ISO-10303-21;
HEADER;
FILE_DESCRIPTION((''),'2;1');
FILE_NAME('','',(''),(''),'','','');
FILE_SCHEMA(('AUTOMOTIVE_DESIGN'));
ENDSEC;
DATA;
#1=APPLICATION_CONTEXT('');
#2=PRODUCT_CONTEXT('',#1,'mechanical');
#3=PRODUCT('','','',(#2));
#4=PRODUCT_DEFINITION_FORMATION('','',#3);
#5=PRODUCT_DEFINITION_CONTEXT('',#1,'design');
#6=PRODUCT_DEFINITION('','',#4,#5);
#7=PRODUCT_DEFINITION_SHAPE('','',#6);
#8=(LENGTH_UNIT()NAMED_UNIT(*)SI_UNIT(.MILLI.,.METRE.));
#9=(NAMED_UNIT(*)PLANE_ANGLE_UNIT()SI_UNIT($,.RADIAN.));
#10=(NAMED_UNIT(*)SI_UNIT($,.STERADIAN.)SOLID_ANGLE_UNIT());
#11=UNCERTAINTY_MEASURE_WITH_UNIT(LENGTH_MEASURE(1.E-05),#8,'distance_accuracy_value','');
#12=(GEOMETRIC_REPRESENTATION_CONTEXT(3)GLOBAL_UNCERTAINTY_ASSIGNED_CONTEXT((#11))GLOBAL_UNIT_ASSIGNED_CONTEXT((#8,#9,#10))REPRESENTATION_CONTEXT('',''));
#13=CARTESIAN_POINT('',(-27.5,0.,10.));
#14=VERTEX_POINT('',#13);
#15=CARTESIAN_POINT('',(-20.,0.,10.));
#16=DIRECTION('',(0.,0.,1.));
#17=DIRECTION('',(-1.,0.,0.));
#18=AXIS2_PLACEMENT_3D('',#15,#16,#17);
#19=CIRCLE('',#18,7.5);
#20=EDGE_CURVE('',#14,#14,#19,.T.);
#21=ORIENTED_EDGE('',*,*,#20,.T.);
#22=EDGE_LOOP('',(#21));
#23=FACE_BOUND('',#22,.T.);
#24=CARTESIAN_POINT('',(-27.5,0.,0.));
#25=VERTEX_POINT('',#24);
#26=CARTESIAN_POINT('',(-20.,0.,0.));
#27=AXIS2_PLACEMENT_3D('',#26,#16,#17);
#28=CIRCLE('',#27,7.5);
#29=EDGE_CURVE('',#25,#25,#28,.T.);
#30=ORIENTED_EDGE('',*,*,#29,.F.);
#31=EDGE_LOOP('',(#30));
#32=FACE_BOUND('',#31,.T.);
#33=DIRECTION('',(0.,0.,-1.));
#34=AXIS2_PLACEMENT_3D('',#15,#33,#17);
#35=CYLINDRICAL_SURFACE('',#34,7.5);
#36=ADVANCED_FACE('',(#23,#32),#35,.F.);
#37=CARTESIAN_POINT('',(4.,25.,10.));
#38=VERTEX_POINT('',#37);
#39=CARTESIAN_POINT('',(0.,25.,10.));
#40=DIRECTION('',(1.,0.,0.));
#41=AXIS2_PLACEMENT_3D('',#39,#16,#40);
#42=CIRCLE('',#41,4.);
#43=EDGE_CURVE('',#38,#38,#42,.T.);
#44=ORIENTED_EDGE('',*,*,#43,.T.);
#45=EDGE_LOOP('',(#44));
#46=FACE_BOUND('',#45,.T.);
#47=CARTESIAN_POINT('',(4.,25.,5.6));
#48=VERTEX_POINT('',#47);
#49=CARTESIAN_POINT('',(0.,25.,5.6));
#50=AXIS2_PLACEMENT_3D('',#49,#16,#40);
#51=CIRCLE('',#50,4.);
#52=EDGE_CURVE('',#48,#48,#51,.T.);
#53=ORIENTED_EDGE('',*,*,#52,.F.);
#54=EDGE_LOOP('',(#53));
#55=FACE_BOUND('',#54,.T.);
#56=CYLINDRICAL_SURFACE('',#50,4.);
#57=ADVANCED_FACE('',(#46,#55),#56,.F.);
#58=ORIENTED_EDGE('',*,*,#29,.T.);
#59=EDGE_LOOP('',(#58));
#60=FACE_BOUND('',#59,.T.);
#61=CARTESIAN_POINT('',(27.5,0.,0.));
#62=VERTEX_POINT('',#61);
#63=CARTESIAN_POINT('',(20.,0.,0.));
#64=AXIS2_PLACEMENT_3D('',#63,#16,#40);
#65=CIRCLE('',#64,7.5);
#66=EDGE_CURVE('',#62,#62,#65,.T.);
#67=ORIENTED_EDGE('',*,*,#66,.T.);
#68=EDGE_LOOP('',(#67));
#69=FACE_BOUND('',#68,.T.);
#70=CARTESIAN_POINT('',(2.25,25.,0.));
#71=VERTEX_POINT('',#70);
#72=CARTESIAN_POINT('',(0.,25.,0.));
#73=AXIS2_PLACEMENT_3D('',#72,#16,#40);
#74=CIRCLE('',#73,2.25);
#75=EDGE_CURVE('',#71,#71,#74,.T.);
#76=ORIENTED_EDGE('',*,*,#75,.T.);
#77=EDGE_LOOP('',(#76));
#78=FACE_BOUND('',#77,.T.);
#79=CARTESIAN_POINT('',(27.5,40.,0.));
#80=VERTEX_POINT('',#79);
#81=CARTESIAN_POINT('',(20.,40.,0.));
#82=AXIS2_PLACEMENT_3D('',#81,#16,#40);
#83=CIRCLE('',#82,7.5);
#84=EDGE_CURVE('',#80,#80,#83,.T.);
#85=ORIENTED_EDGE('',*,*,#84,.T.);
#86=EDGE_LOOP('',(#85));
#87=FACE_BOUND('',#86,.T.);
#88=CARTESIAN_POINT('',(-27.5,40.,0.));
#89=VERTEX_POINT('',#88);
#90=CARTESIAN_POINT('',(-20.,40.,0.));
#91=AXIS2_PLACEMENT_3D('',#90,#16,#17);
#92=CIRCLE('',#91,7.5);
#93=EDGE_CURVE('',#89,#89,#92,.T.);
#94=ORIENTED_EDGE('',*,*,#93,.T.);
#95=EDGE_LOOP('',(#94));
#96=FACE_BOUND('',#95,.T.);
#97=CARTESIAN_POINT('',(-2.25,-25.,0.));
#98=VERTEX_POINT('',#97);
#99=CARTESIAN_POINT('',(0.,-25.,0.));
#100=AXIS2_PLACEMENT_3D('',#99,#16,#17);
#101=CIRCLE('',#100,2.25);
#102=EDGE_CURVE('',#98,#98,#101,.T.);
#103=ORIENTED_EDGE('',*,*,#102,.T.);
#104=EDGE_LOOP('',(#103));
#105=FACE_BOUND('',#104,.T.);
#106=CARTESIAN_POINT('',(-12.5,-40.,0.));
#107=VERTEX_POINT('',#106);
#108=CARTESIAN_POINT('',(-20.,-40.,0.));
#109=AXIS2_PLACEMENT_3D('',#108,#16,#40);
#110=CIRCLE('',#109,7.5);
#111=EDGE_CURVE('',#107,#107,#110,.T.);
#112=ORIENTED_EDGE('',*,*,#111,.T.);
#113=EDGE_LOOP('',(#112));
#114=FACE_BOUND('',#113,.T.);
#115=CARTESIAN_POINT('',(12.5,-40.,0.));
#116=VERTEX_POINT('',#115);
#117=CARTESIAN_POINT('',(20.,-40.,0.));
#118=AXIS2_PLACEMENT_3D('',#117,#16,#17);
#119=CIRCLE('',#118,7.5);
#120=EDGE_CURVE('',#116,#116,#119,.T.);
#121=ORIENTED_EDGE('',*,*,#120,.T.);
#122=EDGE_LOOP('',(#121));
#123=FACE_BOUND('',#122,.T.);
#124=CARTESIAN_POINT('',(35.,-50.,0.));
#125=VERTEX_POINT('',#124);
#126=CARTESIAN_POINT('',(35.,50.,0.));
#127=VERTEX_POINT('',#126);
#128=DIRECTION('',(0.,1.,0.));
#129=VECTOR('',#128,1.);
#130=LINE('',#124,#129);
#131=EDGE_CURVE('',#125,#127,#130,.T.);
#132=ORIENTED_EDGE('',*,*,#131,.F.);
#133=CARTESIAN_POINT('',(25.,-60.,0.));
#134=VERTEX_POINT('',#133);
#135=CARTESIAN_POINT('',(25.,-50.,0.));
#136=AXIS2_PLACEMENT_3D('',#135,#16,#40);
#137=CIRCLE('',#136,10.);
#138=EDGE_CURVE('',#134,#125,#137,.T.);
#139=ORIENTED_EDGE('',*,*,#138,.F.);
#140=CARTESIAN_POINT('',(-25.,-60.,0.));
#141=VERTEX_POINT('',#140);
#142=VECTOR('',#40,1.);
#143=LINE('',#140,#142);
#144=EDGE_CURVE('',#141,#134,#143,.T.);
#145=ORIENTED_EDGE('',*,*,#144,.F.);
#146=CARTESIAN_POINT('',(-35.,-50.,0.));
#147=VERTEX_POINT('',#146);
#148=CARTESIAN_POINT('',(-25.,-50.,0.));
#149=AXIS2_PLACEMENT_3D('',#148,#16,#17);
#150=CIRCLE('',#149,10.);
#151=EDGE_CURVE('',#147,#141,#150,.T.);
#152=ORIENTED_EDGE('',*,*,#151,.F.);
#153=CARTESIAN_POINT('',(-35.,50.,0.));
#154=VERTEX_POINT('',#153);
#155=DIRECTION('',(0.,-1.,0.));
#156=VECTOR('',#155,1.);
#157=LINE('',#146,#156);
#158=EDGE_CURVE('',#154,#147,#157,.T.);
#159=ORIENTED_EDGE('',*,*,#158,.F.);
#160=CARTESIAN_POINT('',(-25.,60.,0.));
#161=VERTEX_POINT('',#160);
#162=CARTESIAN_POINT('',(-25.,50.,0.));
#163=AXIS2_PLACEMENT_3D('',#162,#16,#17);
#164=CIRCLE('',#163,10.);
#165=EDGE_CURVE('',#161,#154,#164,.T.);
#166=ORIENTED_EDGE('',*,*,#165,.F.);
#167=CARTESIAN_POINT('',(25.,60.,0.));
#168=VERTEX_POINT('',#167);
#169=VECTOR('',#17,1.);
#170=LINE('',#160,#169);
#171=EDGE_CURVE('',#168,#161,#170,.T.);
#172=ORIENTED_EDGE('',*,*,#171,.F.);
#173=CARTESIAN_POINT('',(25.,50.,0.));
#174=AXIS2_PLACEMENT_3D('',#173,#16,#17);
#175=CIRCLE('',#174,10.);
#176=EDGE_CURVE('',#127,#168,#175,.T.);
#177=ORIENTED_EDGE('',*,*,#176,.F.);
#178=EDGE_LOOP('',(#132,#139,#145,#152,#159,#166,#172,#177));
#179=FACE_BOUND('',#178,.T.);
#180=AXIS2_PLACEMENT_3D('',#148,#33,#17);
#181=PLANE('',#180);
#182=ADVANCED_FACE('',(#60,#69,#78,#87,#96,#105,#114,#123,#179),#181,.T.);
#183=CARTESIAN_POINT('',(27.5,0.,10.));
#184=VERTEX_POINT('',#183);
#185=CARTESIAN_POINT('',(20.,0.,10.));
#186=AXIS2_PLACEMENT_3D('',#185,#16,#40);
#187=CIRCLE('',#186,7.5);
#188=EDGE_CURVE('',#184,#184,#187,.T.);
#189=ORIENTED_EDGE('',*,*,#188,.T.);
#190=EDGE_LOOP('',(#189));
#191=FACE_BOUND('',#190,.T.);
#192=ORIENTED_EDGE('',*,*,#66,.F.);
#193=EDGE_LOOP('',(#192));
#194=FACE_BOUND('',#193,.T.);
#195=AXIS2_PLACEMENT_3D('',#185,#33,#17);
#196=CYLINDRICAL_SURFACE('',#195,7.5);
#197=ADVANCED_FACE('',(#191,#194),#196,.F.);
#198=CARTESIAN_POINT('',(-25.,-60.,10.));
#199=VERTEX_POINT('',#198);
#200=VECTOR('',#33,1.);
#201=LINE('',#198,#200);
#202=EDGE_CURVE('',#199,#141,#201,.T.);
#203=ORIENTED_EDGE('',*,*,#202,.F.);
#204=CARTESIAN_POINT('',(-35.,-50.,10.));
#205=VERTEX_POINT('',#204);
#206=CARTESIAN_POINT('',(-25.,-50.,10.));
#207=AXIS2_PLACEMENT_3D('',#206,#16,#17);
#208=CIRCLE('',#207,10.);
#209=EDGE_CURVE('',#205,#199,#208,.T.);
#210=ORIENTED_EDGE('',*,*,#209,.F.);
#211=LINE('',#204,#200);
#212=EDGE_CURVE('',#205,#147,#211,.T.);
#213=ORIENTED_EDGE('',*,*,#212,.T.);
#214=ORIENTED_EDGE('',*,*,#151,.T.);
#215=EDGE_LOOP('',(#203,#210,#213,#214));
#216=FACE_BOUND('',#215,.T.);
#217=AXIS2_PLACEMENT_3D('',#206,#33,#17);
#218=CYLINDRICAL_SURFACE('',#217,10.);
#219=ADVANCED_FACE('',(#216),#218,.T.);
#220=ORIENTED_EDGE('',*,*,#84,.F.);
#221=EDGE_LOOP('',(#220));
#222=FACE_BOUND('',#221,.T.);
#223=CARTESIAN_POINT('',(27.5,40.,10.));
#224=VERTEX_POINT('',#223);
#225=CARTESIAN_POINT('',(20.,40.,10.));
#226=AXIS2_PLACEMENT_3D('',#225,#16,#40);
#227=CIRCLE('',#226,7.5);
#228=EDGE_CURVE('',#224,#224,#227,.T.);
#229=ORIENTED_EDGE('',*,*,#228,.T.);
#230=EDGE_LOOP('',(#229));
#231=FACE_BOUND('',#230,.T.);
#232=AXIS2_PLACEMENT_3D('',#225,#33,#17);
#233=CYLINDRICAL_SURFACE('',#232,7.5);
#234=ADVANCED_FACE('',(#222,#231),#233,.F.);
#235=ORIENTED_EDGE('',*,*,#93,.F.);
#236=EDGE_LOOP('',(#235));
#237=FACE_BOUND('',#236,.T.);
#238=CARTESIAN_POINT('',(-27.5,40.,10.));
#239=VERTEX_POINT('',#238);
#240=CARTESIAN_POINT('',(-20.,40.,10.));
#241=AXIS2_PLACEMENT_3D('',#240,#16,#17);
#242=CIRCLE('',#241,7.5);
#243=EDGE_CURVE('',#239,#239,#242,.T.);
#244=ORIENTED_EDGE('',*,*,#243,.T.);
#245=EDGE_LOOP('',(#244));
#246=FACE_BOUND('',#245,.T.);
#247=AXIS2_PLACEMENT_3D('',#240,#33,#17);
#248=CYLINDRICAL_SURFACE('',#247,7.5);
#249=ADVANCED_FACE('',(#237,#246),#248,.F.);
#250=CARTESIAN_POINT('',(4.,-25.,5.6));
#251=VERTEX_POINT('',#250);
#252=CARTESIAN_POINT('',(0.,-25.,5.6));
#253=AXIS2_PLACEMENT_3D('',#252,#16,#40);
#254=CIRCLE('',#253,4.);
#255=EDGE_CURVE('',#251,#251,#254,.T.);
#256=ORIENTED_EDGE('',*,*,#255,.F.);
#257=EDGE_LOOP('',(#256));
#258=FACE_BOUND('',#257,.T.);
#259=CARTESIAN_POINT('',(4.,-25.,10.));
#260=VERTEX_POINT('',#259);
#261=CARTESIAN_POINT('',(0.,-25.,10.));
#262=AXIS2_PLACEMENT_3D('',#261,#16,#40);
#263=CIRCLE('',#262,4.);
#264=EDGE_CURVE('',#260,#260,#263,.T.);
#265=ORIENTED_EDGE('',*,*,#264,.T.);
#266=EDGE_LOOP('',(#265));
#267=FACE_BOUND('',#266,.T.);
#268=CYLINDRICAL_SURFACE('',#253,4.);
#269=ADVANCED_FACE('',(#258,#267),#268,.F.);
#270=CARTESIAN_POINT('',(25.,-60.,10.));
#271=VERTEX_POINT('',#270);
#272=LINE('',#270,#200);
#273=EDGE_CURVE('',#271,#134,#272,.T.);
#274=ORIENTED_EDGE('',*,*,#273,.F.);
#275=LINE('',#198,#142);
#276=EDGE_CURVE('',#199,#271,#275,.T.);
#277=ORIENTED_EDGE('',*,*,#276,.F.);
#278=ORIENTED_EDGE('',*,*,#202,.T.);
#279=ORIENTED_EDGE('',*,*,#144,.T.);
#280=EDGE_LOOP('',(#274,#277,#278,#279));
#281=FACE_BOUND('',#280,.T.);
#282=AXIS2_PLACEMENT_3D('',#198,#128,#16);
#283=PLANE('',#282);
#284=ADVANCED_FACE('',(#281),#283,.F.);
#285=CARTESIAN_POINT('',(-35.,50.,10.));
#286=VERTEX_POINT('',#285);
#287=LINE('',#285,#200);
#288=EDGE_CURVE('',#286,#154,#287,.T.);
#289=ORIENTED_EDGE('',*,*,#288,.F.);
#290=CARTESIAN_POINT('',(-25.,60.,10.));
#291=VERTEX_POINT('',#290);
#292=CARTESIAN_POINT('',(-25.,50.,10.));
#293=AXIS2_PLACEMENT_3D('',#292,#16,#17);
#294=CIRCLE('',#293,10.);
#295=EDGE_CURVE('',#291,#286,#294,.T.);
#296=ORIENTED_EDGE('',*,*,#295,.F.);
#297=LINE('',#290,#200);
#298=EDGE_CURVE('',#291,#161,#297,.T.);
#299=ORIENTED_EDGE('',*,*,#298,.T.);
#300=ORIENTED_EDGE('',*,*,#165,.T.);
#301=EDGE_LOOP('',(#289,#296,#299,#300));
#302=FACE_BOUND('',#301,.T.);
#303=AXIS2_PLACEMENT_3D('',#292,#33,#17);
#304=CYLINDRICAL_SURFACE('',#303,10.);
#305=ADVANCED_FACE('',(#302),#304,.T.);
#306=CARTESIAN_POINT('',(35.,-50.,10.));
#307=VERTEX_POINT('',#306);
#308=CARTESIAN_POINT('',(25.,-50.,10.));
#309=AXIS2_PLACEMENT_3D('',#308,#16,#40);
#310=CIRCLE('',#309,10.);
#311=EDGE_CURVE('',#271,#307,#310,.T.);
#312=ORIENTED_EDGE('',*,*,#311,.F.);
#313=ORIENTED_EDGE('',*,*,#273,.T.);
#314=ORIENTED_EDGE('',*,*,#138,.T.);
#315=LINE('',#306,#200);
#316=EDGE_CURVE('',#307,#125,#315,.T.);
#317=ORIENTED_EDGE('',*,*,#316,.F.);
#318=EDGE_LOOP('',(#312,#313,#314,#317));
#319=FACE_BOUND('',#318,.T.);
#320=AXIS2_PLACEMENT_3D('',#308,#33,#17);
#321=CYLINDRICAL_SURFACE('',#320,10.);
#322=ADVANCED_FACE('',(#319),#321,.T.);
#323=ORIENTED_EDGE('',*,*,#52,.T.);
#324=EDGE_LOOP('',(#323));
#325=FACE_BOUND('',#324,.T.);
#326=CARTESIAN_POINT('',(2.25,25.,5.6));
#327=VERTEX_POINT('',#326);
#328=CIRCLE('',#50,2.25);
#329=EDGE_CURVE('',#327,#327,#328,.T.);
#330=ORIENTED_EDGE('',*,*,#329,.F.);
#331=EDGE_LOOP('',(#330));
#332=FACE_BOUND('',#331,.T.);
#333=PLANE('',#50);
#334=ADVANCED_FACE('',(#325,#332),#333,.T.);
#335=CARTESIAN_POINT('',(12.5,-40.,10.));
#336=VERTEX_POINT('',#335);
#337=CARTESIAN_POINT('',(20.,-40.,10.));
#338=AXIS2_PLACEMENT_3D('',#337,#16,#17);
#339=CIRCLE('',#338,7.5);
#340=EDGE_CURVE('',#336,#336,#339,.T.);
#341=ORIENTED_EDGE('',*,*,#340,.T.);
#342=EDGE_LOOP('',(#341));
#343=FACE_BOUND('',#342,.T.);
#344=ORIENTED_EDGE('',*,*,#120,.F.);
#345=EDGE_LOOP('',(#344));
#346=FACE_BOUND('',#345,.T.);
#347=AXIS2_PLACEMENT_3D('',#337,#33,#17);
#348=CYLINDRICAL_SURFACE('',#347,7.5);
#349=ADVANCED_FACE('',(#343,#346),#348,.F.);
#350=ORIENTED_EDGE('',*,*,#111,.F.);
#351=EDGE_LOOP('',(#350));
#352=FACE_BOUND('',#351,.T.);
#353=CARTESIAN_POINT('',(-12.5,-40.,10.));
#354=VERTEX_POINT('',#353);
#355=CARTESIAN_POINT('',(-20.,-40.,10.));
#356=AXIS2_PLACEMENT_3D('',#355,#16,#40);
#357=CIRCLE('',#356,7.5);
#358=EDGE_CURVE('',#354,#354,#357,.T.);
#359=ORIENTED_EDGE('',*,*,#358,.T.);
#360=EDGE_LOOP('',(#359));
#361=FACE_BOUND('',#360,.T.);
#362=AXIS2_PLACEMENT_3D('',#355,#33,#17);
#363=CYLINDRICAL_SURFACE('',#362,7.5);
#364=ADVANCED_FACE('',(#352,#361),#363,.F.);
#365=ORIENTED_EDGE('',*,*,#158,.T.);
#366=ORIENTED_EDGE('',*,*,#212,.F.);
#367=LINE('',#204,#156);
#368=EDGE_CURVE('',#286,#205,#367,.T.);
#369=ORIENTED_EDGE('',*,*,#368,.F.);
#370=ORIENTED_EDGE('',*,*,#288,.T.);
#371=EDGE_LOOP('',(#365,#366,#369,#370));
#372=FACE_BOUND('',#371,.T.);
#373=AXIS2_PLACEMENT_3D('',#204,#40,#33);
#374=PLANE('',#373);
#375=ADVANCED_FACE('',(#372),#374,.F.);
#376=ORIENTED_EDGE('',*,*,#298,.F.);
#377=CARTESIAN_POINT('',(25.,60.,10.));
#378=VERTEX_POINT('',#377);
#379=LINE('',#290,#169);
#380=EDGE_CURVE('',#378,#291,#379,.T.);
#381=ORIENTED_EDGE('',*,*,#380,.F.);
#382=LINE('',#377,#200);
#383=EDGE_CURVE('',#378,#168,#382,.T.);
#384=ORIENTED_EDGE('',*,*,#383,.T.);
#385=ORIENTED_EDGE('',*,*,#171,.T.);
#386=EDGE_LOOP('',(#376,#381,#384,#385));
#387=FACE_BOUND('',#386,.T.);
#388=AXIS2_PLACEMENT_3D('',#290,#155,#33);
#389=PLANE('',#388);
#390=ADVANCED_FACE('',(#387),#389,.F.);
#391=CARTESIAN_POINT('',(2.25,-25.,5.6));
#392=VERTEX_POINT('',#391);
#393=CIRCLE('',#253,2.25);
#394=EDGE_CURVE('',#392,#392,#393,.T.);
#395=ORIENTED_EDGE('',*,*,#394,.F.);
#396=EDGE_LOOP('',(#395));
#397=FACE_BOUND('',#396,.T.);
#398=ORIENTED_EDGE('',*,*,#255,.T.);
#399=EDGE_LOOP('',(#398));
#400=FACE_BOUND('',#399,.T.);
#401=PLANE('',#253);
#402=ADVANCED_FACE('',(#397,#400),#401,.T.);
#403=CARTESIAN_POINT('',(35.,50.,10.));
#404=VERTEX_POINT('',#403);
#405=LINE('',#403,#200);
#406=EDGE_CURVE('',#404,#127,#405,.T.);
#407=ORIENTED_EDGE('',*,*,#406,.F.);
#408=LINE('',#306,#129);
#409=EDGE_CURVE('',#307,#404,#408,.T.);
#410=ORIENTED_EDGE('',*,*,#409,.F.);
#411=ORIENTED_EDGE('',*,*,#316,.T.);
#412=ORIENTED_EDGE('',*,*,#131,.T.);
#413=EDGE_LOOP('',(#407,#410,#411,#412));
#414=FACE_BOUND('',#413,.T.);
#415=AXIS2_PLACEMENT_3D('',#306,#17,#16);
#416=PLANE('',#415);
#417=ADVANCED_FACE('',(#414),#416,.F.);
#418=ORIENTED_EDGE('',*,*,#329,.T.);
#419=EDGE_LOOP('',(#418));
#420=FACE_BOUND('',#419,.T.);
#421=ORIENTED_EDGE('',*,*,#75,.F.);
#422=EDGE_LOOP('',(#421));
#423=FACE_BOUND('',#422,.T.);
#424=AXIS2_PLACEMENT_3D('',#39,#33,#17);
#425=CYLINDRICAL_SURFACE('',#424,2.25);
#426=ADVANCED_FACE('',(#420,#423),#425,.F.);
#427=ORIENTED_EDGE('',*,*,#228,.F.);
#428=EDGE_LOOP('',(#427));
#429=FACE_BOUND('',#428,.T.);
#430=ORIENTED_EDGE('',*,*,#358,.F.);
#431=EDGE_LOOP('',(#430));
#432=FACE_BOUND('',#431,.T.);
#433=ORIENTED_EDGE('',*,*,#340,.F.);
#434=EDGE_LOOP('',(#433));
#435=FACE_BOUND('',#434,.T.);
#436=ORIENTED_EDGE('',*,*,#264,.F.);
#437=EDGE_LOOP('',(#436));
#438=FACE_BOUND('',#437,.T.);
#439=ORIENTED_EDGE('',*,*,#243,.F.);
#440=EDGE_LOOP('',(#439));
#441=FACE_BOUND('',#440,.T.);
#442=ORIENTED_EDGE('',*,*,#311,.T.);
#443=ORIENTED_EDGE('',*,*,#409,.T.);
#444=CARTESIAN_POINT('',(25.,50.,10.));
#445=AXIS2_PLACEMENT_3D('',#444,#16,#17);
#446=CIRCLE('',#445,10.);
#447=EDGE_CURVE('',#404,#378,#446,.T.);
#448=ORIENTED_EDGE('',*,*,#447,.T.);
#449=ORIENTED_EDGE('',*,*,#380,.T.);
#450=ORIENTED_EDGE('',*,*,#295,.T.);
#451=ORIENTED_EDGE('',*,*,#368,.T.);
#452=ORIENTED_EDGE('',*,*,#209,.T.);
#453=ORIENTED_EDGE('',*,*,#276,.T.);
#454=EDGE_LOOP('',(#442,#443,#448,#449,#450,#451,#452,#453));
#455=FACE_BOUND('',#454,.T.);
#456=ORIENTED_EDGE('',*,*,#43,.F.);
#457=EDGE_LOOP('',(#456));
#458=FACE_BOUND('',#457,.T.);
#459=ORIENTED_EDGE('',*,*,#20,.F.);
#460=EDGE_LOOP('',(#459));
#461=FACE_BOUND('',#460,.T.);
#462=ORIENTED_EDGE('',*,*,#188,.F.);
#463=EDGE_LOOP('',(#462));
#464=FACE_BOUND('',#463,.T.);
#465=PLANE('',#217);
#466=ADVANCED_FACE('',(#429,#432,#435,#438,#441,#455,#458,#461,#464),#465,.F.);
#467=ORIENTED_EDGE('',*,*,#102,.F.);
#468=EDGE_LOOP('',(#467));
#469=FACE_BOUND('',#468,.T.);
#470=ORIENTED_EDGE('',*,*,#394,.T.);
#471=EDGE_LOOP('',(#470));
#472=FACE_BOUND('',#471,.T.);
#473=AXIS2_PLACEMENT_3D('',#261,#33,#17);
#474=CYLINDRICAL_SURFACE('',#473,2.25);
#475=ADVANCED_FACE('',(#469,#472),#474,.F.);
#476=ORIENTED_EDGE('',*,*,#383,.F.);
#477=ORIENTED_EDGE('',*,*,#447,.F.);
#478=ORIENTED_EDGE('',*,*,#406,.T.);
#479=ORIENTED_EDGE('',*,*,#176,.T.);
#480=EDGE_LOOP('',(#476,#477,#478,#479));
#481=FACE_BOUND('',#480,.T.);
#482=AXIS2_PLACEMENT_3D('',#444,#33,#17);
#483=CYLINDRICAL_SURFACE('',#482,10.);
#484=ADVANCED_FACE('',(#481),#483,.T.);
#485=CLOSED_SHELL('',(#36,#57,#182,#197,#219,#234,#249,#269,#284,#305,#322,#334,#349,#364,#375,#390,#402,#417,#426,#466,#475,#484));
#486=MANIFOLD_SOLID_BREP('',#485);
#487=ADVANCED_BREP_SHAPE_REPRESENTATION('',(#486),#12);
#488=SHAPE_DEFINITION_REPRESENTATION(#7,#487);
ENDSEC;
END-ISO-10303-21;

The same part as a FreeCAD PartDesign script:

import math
import FreeCAD as App
import Part
import Sketcher
from FreeCAD import Vector
Q = App.Units.Quantity

doc = App.newDocument("Part")
body = doc.addObject("PartDesign::Body", "Body")

# Sketch on XY plane
sketch1 = doc.addObject("Sketcher::SketchObject", "Sketch")
body.addObject(sketch1)
sketch1.AttachmentSupport = (doc.XY_Plane, [""])
sketch1.MapMode = "FlatFace"
sketch1.addGeometry([
    Part.LineSegment(Vector(-25, -60, 0), Vector(25, -60, 0)),  # 0
    Part.ArcOfCircle(Part.Circle(Vector(25, -50, 0), Vector(0, 0, 1), 10), math.radians(-90), math.radians(0)),  # 1
    Part.LineSegment(Vector(35, -50, 0), Vector(35, 50, 0)),  # 2
    Part.ArcOfCircle(Part.Circle(Vector(25, 50, 0), Vector(0, 0, 1), 10), math.radians(0), math.radians(90)),  # 3
    Part.LineSegment(Vector(25, 60, 0), Vector(-25, 60, 0)),  # 4
    Part.ArcOfCircle(Part.Circle(Vector(-25, 50, 0), Vector(0, 0, 1), 10), math.radians(90), math.radians(180)),  # 5
    Part.LineSegment(Vector(-35, 50, 0), Vector(-35, -50, 0)),  # 6
    Part.ArcOfCircle(Part.Circle(Vector(-25, -50, 0), Vector(0, 0, 1), 10), math.radians(180), math.radians(270)),  # 7
    Part.Circle(Vector(-20, -40, 0), Vector(0, 0, 1), 7.5),  # 8
    Part.Circle(Vector(0, -25, 0), Vector(0, 0, 1), 2.25),  # 9
    Part.Circle(Vector(20, -40, 0), Vector(0, 0, 1), 7.5),  # 10
    Part.Circle(Vector(-20, 0, 0), Vector(0, 0, 1), 7.5),  # 11
    Part.Circle(Vector(-20, 40, 0), Vector(0, 0, 1), 7.5),  # 12
    Part.Circle(Vector(20, 0, 0), Vector(0, 0, 1), 7.5),  # 13
    Part.Circle(Vector(0, 25, 0), Vector(0, 0, 1), 2.25),  # 14
    Part.Circle(Vector(20, 40, 0), Vector(0, 0, 1), 7.5),  # 15
], False)
sketch1.addConstraint([
    Sketcher.Constraint("Tangent", 0, 2, 1, 1),
    Sketcher.Constraint("Tangent", 1, 2, 2, 1),
    Sketcher.Constraint("Tangent", 2, 2, 3, 1),
    Sketcher.Constraint("Tangent", 3, 2, 4, 1),
    Sketcher.Constraint("Tangent", 4, 2, 5, 1),
    Sketcher.Constraint("Tangent", 5, 2, 6, 1),
    Sketcher.Constraint("Tangent", 6, 2, 7, 1),
    Sketcher.Constraint("Tangent", 7, 2, 0, 1),
    Sketcher.Constraint("Horizontal", 0),
    Sketcher.Constraint("Vertical", 2),
    Sketcher.Constraint("Horizontal", 4),
    Sketcher.Constraint("Vertical", 6),
    Sketcher.Constraint("Equal", 1, 3),
    Sketcher.Constraint("Equal", 3, 5),
    Sketcher.Constraint("Equal", 5, 7),
    Sketcher.Constraint("Equal", 8, 10),
    Sketcher.Constraint("Equal", 10, 11),
    Sketcher.Constraint("Equal", 11, 12),
    Sketcher.Constraint("Equal", 12, 13),
    Sketcher.Constraint("Equal", 9, 14),
    Sketcher.Constraint("Equal", 13, 15),
    Sketcher.Constraint("Symmetric", 1, 3, 5, 3, -1, 1),
    Sketcher.Constraint("Symmetric", 10, 3, 12, 3, -1, 1),
    Sketcher.Constraint("Symmetric", 11, 3, 13, 3, -1, 1),
    Sketcher.Constraint("Symmetric", 9, 3, 14, 3, -1, 1),
    Sketcher.Constraint("Symmetric", 8, 3, 15, 3, -1, 1),
    Sketcher.Constraint("Symmetric", 8, 3, 10, 3, -2),
    Sketcher.Constraint("PointOnObject", 9, 3, -2),
    Sketcher.Constraint("PointOnObject", 11, 3, -1),
    Sketcher.Constraint("Vertical", 8, 3, 11, 3),
    Sketcher.Constraint("Diameter", 8, Q("15 mm")),
    Sketcher.Constraint("Radius", 1, Q("10 mm")),
    Sketcher.Constraint("Diameter", 9, Q("4.5 mm")),
    Sketcher.Constraint("DistanceX", 0, 1, 0, 2, Q("50 mm")),
    Sketcher.Constraint("DistanceY", 2, 1, 2, 2, Q("100 mm")),
    Sketcher.Constraint("DistanceX", 8, 3, -1, 1, Q("20 mm")),
    Sketcher.Constraint("DistanceY", 8, 3, -1, 1, Q("40 mm")),
    Sketcher.Constraint("DistanceY", 9, 3, -1, 1, Q("25 mm")),
])
pad1 = doc.addObject("PartDesign::Pad", "Pad")
body.addObject(pad1)
pad1.Profile = sketch1
pad1.Length = 10

# Sketch on XY plane
sketch2 = doc.addObject("Sketcher::SketchObject", "Sketch001")
body.addObject(sketch2)
sketch2.AttachmentSupport = (doc.XY_Plane, [""])
sketch2.MapMode = "FlatFace"
sketch2.AttachmentOffset = App.Placement(Vector(0, 0, 10), App.Rotation())
sketch2.addGeometry([
    Part.Circle(Vector(0, 25, 0), Vector(0, 0, 1), 4),
    Part.Circle(Vector(0, -25, 0), Vector(0, 0, 1), 4),
], False)
sketch2.addConstraint([
    Sketcher.Constraint("Equal", 0, 1),
    Sketcher.Constraint("Symmetric", 0, 3, 1, 3, -1, 1),
    Sketcher.Constraint("PointOnObject", 0, 3, -2),
    Sketcher.Constraint("Diameter", 0, Q("8 mm")),
    Sketcher.Constraint("DistanceY", -1, 1, 0, 3, Q("25 mm")),
])
pocket1 = doc.addObject("PartDesign::Pocket", "Pocket")
body.addObject(pocket1)
pocket1.Profile = sketch2
pocket1.Length = 4.4

doc.recompute()
